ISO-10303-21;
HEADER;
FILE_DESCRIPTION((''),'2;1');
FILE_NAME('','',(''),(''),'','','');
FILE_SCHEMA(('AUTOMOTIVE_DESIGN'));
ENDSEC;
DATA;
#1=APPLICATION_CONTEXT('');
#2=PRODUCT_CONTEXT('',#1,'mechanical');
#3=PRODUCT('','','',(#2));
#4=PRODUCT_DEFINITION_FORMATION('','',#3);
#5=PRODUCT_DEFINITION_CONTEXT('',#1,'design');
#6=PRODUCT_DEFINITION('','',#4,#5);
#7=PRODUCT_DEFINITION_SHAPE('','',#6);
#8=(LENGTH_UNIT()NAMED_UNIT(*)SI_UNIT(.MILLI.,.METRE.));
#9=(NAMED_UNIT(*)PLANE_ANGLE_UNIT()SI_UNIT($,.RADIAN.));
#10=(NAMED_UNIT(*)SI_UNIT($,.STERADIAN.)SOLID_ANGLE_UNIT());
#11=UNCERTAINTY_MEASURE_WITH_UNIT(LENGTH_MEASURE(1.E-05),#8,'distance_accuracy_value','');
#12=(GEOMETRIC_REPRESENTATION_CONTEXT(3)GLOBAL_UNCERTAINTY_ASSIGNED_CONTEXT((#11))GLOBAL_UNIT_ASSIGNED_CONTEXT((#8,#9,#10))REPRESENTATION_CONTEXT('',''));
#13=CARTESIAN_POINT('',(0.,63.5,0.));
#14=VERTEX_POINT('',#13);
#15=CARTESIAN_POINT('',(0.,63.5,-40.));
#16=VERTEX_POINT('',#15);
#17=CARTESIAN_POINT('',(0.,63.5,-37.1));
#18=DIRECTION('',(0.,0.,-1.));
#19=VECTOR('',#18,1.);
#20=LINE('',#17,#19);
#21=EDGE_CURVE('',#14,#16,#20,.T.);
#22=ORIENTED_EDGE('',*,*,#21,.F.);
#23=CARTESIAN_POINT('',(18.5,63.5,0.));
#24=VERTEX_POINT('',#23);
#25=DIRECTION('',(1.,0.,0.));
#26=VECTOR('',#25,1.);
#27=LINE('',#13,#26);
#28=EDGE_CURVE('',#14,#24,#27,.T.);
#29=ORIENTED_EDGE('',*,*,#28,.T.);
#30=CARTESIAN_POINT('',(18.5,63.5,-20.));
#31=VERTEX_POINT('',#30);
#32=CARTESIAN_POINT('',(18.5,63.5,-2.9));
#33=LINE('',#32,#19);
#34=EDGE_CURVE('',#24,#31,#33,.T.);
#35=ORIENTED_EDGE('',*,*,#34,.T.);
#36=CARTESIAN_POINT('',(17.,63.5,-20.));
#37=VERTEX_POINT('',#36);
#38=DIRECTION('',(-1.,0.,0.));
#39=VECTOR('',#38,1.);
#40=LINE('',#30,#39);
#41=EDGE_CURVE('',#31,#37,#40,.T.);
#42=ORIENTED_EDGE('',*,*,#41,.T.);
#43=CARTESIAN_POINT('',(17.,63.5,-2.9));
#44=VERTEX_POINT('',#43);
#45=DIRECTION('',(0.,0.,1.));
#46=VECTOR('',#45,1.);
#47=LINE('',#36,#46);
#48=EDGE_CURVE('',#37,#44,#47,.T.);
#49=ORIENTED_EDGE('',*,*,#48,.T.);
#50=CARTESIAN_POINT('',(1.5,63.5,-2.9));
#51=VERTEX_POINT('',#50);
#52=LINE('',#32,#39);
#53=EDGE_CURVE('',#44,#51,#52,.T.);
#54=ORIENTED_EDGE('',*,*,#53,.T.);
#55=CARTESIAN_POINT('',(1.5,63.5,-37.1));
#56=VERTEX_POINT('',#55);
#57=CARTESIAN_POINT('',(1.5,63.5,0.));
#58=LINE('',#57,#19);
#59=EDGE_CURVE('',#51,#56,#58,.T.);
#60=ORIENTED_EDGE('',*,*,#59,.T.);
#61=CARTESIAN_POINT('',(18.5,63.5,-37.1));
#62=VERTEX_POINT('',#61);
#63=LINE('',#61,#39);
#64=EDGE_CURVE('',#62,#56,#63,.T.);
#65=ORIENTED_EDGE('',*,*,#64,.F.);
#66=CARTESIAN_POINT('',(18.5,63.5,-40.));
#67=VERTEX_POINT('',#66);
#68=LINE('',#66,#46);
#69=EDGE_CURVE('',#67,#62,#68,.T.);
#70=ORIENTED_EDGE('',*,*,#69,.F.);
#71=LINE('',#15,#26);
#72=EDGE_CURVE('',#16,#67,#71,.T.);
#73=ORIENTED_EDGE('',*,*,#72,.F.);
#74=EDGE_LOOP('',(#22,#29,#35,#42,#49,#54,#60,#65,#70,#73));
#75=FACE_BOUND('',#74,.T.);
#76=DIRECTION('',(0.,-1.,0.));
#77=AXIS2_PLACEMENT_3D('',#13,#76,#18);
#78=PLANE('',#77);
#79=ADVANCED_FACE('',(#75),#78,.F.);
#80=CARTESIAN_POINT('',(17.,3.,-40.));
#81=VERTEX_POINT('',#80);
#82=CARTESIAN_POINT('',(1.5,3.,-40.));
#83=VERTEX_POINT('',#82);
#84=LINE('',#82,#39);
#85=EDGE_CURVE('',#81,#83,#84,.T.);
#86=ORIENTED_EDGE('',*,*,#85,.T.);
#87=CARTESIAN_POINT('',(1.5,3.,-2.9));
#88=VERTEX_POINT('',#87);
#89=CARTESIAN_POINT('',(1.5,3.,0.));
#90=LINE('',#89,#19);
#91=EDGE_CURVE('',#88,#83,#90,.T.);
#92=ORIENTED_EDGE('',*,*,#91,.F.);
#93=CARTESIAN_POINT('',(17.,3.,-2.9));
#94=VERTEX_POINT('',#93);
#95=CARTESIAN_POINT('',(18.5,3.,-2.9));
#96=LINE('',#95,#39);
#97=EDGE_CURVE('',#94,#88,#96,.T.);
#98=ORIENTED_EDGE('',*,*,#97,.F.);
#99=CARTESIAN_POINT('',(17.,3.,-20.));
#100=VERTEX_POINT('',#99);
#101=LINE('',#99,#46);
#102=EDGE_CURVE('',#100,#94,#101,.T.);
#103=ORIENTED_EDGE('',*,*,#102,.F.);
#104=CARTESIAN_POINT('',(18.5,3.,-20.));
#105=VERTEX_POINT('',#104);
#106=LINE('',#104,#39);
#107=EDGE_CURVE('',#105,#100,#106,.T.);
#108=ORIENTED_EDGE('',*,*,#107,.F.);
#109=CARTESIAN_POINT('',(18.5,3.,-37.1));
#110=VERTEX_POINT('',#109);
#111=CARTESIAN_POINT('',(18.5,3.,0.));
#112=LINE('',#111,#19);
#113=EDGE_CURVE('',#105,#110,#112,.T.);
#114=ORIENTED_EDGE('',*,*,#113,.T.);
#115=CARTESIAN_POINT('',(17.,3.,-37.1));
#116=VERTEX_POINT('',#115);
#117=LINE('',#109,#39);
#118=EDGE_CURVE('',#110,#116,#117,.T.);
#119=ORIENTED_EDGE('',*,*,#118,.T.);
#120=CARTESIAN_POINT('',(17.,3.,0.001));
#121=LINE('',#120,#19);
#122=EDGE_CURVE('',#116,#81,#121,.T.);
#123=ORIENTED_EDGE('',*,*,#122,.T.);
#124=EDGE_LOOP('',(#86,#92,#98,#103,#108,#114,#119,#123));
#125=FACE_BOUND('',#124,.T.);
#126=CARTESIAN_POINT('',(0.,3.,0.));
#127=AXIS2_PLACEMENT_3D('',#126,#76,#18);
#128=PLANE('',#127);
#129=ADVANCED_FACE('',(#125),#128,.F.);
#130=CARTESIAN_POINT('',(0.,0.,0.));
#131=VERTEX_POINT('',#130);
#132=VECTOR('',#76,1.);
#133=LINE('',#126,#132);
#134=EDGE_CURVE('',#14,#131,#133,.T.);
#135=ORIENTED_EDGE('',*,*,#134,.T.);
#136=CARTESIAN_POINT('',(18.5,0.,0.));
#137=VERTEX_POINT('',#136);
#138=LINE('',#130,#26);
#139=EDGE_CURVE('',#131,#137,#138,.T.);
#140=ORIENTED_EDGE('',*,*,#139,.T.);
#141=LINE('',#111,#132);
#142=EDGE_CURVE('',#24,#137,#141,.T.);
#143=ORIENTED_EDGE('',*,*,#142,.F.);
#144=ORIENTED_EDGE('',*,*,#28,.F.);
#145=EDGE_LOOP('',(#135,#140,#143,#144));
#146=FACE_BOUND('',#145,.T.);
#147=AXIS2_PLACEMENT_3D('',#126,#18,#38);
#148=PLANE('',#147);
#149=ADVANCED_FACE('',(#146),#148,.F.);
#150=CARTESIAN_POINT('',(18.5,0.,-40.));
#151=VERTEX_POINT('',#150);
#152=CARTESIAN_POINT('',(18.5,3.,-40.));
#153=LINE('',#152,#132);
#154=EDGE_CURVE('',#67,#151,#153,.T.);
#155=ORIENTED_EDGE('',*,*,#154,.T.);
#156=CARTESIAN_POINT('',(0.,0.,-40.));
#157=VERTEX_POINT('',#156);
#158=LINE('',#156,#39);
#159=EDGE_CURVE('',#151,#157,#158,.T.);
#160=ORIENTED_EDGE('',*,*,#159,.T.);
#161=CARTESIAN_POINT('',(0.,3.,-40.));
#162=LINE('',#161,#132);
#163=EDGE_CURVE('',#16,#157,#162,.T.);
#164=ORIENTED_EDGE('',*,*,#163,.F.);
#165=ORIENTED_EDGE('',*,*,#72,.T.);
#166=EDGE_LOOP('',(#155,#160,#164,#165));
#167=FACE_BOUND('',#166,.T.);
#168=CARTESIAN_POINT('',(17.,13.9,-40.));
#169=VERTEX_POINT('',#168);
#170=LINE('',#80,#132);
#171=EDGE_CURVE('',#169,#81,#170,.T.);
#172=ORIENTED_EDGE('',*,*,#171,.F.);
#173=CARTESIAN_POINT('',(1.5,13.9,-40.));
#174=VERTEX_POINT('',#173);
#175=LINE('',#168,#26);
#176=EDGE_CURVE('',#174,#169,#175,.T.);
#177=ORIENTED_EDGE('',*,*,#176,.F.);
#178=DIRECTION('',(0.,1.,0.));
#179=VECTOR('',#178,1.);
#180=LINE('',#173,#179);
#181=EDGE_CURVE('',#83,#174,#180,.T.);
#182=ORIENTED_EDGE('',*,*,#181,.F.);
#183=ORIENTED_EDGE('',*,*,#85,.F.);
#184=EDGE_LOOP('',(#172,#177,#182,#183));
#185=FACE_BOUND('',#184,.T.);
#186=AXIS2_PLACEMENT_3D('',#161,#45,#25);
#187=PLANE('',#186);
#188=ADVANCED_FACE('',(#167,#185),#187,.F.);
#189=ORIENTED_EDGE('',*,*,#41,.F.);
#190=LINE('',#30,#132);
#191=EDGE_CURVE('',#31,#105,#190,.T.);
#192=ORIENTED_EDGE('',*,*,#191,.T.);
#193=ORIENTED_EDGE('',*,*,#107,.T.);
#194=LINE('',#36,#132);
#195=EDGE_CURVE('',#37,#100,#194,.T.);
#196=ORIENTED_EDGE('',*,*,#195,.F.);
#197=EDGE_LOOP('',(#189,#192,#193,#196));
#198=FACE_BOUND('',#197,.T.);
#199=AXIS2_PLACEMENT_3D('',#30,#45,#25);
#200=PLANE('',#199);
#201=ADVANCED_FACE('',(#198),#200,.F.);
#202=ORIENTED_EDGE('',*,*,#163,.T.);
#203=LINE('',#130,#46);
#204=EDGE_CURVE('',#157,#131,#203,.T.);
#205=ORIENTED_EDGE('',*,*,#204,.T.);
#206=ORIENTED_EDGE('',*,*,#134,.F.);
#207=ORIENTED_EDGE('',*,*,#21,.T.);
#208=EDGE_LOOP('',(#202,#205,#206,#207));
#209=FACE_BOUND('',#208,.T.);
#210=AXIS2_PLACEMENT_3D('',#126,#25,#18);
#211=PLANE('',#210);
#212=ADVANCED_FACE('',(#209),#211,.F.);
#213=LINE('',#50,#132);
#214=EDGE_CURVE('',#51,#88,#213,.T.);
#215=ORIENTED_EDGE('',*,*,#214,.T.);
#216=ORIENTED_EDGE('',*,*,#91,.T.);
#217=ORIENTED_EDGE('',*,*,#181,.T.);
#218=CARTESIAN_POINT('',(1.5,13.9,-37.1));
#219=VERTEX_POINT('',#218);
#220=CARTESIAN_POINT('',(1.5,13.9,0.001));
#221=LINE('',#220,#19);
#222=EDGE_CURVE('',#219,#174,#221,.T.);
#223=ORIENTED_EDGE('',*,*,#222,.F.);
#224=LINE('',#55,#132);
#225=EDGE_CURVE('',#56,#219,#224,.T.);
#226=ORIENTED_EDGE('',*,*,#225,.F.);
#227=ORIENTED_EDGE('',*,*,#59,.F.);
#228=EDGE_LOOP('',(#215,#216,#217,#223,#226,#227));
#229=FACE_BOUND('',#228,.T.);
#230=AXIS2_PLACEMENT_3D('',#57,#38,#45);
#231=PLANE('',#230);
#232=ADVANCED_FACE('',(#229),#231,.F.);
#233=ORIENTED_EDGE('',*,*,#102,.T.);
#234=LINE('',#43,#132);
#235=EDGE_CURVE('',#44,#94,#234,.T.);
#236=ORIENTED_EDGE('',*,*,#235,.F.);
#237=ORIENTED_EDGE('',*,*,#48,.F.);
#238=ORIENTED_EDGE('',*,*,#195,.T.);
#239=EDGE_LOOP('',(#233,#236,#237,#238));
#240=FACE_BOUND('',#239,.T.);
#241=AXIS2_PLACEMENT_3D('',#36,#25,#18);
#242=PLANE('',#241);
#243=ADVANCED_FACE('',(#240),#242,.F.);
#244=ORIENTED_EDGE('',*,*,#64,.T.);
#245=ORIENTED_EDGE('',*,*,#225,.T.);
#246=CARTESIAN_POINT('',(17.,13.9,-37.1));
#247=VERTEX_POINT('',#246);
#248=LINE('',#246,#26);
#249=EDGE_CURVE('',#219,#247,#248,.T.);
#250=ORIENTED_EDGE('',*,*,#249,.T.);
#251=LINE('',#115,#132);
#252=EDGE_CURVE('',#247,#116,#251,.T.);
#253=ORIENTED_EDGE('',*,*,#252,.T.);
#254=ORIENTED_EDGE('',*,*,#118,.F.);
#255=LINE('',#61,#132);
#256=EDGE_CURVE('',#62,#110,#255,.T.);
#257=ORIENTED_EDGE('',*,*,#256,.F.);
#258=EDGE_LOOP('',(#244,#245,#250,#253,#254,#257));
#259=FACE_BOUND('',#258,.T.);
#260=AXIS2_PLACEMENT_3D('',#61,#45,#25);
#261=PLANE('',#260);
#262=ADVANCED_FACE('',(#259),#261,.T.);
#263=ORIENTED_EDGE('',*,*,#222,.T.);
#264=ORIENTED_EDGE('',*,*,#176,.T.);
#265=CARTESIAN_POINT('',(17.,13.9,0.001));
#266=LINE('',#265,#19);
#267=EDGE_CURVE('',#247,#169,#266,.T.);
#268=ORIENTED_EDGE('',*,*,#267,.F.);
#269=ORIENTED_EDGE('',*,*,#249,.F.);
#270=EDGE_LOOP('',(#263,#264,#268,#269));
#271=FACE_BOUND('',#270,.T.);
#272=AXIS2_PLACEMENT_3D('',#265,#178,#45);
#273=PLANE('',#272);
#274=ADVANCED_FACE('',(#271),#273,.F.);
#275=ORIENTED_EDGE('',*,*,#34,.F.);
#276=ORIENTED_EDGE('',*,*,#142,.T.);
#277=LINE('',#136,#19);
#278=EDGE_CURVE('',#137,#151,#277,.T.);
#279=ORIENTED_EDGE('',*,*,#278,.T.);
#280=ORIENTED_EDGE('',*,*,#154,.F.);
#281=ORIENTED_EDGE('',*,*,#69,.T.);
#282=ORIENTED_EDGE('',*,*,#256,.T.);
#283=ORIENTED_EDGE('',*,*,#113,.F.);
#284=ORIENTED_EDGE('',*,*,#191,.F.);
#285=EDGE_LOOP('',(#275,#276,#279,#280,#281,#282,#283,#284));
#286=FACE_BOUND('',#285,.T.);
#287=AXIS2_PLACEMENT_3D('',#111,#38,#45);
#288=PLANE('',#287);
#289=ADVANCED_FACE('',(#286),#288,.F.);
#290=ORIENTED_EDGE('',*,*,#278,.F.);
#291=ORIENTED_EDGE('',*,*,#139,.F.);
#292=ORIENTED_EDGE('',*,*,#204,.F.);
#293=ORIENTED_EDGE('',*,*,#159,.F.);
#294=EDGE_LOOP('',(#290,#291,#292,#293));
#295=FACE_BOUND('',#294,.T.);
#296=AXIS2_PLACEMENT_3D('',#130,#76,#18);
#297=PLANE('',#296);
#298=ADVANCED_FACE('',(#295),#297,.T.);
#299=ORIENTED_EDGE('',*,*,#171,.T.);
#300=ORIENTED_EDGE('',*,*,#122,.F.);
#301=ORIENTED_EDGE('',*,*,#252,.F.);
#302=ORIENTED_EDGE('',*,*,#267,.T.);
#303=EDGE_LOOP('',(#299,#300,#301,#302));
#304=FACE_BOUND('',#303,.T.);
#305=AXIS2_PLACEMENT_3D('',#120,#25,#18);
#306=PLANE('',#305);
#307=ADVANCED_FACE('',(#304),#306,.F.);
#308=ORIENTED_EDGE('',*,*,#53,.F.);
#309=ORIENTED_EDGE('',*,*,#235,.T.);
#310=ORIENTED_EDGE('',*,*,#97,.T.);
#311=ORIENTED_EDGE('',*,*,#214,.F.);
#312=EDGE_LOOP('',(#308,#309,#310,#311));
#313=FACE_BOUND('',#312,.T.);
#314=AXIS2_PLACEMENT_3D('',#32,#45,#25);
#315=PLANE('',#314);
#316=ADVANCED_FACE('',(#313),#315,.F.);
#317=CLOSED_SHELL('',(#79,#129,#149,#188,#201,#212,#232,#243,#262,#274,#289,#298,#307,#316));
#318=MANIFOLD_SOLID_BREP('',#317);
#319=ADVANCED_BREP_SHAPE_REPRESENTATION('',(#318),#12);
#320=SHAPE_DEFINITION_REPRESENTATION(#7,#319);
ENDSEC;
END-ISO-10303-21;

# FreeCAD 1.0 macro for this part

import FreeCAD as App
import Part
import Sketcher
from FreeCAD import Vector


def add_polygon(sketch, points):
    """Adds a closed chain of lines whose ends are joined by coincident constraints."""
    first, n = sketch.GeometryCount, len(points)
    for a, b in zip(points, points[1:] + points[:1]):
        sketch.addGeometry(Part.LineSegment(App.Vector(*a, 0), App.Vector(*b, 0)), False)
    for i in range(n):
        sketch.addConstraint(Sketcher.Constraint("Coincident", first + i, 2, first + (i + 1) % n, 1))

doc = App.newDocument("Part")
body = doc.addObject("PartDesign::Body", "Body")

sketch1 = doc.addObject("Sketcher::SketchObject", "Sketch")
body.addObject(sketch1)
sketch1.AttachmentSupport = (doc.XZ_Plane, [""])
sketch1.MapMode = "FlatFace"
add_polygon(sketch1, [(0, -40), (0, 0), (18.5, 0), (18.5, -40)])
sketch1.addConstraint([
    Sketcher.Constraint("Vertical", 0),
    Sketcher.Constraint("Horizontal", 1),
    Sketcher.Constraint("Vertical", 2),
    Sketcher.Constraint("Horizontal", 3),
    Sketcher.Constraint("Coincident", 0, 2, -1, 1),
    Sketcher.Constraint("DistanceY", 0, 1, 0, 2, 40.0),
    Sketcher.Constraint("DistanceX", 1, 1, 1, 2, 18.5),
])
pad1 = doc.addObject("PartDesign::Pad", "Pad")
body.addObject(pad1)
pad1.Profile = sketch1
pad1.Length = 3
pad1.Reversed = True

sketch2 = doc.addObject("Sketcher::SketchObject", "Sketch001")
body.addObject(sketch2)
sketch2.AttachmentSupport = (doc.XZ_Plane, [""])
sketch2.MapMode = "FlatFace"
sketch2.AttachmentOffset = App.Placement(Vector(0, 0, -3), App.Rotation())
add_polygon(sketch2, [(18.5, -40), (0, -40), (0, 0), (18.5, 0), (18.5, -20), (17, -20), (17, -2.9), (1.5, -2.9), (1.5, -37.1), (18.5, -37.1)])
sketch2.addConstraint([
    Sketcher.Constraint("Horizontal", 0),
    Sketcher.Constraint("Vertical", 1),
    Sketcher.Constraint("Horizontal", 2),
    Sketcher.Constraint("Vertical", 3),
    Sketcher.Constraint("Horizontal", 4),
    Sketcher.Constraint("Vertical", 5),
    Sketcher.Constraint("Horizontal", 6),
    Sketcher.Constraint("Vertical", 7),
    Sketcher.Constraint("Horizontal", 8),
    Sketcher.Constraint("Vertical", 9),
    Sketcher.Constraint("Coincident", 1, 2, -1, 1),
    Sketcher.Constraint("Vertical", 3, 2, 8, 2),
    Sketcher.Constraint("DistanceX", 8, 1, 8, 2, 17.0),
    Sketcher.Constraint("DistanceY", 1, 1, 1, 2, 40.0),
    Sketcher.Constraint("DistanceY", 3, 2, 3, 1, 20.0),
    Sketcher.Constraint("DistanceX", 0, 2, 0, 1, 18.5),
    Sketcher.Constraint("DistanceX", 4, 2, 4, 1, 1.5),
    Sketcher.Constraint("DistanceY", 5, 1, 5, 2, 17.1),
    Sketcher.Constraint("DistanceY", 7, 2, 7, 1, 34.2),
])
pad2 = doc.addObject("PartDesign::Pad", "Pad001")
body.addObject(pad2)
pad2.Profile = sketch2
pad2.Length = 60.5
pad2.Reversed = True

sketch3 = doc.addObject("Sketcher::SketchObject", "Sketch002")
body.addObject(sketch3)
sketch3.AttachmentSupport = (doc.XY_Plane, [""])
sketch3.MapMode = "FlatFace"
sketch3.AttachmentOffset = App.Placement(Vector(0, 0, -40), App.Rotation())
add_polygon(sketch3, [(17, 13.9), (17, 3), (1.5, 3), (1.5, 13.9)])
sketch3.addConstraint([
    Sketcher.Constraint("Vertical", 0),
    Sketcher.Constraint("Horizontal", 1),
    Sketcher.Constraint("Vertical", 2),
    Sketcher.Constraint("Horizontal", 3),
    Sketcher.Constraint("DistanceX", 1, 2, 1, 1, 15.5),
    Sketcher.Constraint("DistanceY", 0, 2, 0, 1, 10.9),
    Sketcher.Constraint("DistanceX", -1, 1, 0, 2, 17.0),
    Sketcher.Constraint("DistanceY", -1, 1, 0, 2, 3.0),
])
pocket1 = doc.addObject("PartDesign::Pocket", "Pocket")
body.addObject(pocket1)
pocket1.Profile = sketch3
pocket1.Type = "UpToFirst"
pocket1.Reversed = True

doc.recompute()
